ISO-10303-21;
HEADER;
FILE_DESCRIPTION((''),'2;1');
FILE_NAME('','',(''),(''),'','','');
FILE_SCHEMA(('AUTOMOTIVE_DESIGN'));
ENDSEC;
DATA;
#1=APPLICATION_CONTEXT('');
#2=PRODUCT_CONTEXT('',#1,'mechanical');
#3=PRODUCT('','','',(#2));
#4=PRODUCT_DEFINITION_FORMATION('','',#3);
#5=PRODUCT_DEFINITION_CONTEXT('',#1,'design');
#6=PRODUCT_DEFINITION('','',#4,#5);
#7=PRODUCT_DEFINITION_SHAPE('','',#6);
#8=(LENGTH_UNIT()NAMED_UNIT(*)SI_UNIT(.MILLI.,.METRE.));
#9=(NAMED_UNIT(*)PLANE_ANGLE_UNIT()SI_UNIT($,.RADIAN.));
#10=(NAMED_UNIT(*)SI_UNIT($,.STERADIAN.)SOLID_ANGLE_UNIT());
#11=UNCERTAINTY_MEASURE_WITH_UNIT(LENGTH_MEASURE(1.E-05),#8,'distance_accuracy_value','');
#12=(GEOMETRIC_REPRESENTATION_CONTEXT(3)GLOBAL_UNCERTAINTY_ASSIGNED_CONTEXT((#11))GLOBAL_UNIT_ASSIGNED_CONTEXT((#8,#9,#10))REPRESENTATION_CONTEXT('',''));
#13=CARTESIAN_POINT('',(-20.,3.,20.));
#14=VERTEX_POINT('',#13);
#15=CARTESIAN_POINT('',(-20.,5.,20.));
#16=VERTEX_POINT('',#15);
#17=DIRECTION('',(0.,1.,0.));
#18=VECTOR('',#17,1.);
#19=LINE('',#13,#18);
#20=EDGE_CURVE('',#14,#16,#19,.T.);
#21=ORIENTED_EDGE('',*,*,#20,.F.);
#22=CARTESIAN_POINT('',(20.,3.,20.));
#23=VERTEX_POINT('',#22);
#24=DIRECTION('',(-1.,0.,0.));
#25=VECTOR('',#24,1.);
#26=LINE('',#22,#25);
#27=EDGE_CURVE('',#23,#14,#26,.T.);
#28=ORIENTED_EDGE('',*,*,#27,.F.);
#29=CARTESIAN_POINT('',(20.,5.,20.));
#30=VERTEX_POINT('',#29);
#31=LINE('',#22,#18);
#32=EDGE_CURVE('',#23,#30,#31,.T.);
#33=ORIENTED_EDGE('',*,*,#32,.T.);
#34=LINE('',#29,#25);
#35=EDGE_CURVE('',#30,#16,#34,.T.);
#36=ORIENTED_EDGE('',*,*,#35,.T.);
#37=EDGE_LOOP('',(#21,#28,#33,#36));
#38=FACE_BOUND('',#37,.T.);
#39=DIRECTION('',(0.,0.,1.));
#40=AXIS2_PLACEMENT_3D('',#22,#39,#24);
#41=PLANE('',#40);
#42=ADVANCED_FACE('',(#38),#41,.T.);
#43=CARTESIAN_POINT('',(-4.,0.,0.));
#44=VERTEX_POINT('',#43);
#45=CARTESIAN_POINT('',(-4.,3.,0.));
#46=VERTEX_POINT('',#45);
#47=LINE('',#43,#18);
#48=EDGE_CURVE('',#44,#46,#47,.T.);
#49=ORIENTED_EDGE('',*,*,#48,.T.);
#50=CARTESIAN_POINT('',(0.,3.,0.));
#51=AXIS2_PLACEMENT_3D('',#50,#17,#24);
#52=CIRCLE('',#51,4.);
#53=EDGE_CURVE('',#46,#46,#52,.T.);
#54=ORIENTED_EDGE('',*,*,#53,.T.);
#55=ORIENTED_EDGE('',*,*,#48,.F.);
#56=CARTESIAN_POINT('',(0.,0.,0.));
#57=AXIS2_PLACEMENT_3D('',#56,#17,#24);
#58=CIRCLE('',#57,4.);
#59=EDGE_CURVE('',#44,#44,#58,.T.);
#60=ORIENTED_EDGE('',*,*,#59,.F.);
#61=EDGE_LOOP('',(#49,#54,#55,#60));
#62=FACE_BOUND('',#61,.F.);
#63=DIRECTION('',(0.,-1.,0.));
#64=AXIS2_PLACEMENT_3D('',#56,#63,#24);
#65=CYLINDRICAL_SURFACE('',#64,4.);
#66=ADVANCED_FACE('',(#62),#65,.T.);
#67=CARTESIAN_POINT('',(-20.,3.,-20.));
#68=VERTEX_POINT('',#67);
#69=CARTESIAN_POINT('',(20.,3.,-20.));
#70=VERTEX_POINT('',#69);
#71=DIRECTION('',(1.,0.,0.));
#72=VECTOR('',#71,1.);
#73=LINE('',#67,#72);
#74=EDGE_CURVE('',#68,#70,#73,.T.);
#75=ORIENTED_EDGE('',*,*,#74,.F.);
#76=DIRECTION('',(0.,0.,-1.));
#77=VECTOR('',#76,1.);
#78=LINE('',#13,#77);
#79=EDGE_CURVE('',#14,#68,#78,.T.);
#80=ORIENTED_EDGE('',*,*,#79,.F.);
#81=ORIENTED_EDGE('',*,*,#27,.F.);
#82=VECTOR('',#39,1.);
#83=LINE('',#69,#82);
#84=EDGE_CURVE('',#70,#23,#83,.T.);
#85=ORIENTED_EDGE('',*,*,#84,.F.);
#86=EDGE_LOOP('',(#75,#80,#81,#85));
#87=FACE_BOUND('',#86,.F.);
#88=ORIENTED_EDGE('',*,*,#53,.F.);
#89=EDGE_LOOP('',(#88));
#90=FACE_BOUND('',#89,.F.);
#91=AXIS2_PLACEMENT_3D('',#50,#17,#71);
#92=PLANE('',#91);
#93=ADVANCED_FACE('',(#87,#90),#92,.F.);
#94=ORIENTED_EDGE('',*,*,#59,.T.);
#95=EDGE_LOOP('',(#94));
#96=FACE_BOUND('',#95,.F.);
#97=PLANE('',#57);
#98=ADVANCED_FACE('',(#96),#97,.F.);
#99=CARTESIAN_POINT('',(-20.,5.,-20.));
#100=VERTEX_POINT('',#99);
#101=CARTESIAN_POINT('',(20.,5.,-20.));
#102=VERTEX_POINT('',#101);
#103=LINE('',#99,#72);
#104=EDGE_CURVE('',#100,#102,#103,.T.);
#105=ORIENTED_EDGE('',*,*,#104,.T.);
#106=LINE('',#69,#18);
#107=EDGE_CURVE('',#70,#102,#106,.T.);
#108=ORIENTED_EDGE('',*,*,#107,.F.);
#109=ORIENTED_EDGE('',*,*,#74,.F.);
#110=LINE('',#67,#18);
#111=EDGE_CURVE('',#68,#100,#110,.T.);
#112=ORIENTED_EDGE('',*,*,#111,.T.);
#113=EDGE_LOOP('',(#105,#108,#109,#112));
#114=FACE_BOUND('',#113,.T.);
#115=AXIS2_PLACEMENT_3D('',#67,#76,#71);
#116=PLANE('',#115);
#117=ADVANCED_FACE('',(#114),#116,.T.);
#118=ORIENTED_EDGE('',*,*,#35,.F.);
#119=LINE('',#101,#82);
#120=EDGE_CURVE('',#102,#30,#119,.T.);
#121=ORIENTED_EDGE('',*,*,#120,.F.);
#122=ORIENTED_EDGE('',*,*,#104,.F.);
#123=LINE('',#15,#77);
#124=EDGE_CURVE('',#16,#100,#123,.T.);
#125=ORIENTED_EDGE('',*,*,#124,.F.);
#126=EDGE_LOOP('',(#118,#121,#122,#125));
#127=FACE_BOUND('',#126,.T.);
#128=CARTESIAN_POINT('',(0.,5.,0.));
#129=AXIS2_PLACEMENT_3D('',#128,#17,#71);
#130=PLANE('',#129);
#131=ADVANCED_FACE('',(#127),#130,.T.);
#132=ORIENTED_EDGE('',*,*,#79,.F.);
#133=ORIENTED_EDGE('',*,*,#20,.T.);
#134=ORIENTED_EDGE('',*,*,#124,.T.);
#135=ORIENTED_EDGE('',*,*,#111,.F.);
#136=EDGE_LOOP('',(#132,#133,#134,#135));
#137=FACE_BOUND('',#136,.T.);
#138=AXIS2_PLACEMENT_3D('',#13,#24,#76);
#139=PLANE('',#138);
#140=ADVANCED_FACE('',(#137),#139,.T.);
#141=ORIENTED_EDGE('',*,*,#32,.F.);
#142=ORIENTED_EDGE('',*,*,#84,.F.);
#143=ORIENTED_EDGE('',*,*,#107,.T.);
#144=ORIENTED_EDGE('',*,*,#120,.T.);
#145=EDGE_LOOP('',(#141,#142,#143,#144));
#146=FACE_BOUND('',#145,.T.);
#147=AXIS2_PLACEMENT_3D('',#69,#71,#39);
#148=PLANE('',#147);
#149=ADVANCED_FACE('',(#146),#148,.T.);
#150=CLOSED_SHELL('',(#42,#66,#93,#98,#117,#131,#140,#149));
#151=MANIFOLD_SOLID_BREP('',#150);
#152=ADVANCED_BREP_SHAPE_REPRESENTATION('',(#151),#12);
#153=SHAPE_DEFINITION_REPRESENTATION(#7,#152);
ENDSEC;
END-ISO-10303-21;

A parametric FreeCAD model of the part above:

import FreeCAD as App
import Part
import Sketcher


def add_polygon(sketch, points):
    """Adds a closed chain of lines whose ends are joined by coincident constraints."""
    first, n = sketch.GeometryCount, len(points)
    for a, b in zip(points, points[1:] + points[:1]):
        sketch.addGeometry(Part.LineSegment(App.Vector(*a, 0), App.Vector(*b, 0)), False)
    for i in range(n):
        sketch.addConstraint(Sketcher.Constraint("Coincident", first + i, 2, first + (i + 1) % n, 1))

doc = App.newDocument("Part")
params = doc.addObject("Spreadsheet::Sheet", "Params")
for row, (alias, value) in enumerate([
    ("sketch1_diameter", "8 mm"),
    ("pad1_length", "3 mm"),
    ("sketch2_width", "40 mm"),
    ("pad2_length", "2 mm"),
], start=1):
    params.set(f"A{row}", alias)
    params.set(f"B{row}", "=" + value)
    params.setAlias(f"B{row}", alias)

body = doc.addObject("PartDesign::Body", "Body")

# Sketch on XZ plane
sketch1 = body.newObject("Sketcher::SketchObject", "Sketch")
sketch1.AttachmentSupport = (doc.getObject("XZ_Plane"), [""])
sketch1.MapMode = "FlatFace"
sketch1.addGeometry(Part.Circle(App.Vector(0, 0, 0), App.Vector(0, 0, 1), 4), False)
sketch1.addConstraint([
    Sketcher.Constraint("Coincident", 0, 3, -1, 1),
    Sketcher.Constraint("Diameter", 0, 8.0),
])
sketch1.setExpression("Constraints[1]", "Params.sketch1_diameter")
pad1 = body.newObject("PartDesign::Pad", "Pad")
pad1.Profile = sketch1
pad1.setExpression("Length", "Params.pad1_length")
pad1.Reversed = True

# Sketch on XZ plane
sketch2 = body.newObject("Sketcher::SketchObject", "Sketch001")
sketch2.AttachmentSupport = (doc.getObject("XZ_Plane"), [""])
sketch2.MapMode = "FlatFace"
sketch2.AttachmentOffset = App.Placement(App.Vector(0, 0, -3), App.Rotation())
add_polygon(sketch2, [(20, -20), (-20, -20), (-20, 20), (20, 20)])  # lines 0-3
sketch2.addConstraint([
    Sketcher.Constraint("Horizontal", 0),
    Sketcher.Constraint("Vertical", 1),
    Sketcher.Constraint("Horizontal", 2),
    Sketcher.Constraint("Vertical", 3),
    Sketcher.Constraint("Symmetric", 0, 2, 2, 2, -1, 1),
    Sketcher.Constraint("Equal", 2, 1),
    Sketcher.Constraint("DistanceX", 0, 2, 0, 1, 40.0),
])
sketch2.setExpression("Constraints[10]", "Params.sketch2_width")
pad2 = body.newObject("PartDesign::Pad", "Pad001")
pad2.Profile = sketch2
pad2.setExpression("Length", "Params.pad2_length")
pad2.Reversed = True

doc.recompute()
